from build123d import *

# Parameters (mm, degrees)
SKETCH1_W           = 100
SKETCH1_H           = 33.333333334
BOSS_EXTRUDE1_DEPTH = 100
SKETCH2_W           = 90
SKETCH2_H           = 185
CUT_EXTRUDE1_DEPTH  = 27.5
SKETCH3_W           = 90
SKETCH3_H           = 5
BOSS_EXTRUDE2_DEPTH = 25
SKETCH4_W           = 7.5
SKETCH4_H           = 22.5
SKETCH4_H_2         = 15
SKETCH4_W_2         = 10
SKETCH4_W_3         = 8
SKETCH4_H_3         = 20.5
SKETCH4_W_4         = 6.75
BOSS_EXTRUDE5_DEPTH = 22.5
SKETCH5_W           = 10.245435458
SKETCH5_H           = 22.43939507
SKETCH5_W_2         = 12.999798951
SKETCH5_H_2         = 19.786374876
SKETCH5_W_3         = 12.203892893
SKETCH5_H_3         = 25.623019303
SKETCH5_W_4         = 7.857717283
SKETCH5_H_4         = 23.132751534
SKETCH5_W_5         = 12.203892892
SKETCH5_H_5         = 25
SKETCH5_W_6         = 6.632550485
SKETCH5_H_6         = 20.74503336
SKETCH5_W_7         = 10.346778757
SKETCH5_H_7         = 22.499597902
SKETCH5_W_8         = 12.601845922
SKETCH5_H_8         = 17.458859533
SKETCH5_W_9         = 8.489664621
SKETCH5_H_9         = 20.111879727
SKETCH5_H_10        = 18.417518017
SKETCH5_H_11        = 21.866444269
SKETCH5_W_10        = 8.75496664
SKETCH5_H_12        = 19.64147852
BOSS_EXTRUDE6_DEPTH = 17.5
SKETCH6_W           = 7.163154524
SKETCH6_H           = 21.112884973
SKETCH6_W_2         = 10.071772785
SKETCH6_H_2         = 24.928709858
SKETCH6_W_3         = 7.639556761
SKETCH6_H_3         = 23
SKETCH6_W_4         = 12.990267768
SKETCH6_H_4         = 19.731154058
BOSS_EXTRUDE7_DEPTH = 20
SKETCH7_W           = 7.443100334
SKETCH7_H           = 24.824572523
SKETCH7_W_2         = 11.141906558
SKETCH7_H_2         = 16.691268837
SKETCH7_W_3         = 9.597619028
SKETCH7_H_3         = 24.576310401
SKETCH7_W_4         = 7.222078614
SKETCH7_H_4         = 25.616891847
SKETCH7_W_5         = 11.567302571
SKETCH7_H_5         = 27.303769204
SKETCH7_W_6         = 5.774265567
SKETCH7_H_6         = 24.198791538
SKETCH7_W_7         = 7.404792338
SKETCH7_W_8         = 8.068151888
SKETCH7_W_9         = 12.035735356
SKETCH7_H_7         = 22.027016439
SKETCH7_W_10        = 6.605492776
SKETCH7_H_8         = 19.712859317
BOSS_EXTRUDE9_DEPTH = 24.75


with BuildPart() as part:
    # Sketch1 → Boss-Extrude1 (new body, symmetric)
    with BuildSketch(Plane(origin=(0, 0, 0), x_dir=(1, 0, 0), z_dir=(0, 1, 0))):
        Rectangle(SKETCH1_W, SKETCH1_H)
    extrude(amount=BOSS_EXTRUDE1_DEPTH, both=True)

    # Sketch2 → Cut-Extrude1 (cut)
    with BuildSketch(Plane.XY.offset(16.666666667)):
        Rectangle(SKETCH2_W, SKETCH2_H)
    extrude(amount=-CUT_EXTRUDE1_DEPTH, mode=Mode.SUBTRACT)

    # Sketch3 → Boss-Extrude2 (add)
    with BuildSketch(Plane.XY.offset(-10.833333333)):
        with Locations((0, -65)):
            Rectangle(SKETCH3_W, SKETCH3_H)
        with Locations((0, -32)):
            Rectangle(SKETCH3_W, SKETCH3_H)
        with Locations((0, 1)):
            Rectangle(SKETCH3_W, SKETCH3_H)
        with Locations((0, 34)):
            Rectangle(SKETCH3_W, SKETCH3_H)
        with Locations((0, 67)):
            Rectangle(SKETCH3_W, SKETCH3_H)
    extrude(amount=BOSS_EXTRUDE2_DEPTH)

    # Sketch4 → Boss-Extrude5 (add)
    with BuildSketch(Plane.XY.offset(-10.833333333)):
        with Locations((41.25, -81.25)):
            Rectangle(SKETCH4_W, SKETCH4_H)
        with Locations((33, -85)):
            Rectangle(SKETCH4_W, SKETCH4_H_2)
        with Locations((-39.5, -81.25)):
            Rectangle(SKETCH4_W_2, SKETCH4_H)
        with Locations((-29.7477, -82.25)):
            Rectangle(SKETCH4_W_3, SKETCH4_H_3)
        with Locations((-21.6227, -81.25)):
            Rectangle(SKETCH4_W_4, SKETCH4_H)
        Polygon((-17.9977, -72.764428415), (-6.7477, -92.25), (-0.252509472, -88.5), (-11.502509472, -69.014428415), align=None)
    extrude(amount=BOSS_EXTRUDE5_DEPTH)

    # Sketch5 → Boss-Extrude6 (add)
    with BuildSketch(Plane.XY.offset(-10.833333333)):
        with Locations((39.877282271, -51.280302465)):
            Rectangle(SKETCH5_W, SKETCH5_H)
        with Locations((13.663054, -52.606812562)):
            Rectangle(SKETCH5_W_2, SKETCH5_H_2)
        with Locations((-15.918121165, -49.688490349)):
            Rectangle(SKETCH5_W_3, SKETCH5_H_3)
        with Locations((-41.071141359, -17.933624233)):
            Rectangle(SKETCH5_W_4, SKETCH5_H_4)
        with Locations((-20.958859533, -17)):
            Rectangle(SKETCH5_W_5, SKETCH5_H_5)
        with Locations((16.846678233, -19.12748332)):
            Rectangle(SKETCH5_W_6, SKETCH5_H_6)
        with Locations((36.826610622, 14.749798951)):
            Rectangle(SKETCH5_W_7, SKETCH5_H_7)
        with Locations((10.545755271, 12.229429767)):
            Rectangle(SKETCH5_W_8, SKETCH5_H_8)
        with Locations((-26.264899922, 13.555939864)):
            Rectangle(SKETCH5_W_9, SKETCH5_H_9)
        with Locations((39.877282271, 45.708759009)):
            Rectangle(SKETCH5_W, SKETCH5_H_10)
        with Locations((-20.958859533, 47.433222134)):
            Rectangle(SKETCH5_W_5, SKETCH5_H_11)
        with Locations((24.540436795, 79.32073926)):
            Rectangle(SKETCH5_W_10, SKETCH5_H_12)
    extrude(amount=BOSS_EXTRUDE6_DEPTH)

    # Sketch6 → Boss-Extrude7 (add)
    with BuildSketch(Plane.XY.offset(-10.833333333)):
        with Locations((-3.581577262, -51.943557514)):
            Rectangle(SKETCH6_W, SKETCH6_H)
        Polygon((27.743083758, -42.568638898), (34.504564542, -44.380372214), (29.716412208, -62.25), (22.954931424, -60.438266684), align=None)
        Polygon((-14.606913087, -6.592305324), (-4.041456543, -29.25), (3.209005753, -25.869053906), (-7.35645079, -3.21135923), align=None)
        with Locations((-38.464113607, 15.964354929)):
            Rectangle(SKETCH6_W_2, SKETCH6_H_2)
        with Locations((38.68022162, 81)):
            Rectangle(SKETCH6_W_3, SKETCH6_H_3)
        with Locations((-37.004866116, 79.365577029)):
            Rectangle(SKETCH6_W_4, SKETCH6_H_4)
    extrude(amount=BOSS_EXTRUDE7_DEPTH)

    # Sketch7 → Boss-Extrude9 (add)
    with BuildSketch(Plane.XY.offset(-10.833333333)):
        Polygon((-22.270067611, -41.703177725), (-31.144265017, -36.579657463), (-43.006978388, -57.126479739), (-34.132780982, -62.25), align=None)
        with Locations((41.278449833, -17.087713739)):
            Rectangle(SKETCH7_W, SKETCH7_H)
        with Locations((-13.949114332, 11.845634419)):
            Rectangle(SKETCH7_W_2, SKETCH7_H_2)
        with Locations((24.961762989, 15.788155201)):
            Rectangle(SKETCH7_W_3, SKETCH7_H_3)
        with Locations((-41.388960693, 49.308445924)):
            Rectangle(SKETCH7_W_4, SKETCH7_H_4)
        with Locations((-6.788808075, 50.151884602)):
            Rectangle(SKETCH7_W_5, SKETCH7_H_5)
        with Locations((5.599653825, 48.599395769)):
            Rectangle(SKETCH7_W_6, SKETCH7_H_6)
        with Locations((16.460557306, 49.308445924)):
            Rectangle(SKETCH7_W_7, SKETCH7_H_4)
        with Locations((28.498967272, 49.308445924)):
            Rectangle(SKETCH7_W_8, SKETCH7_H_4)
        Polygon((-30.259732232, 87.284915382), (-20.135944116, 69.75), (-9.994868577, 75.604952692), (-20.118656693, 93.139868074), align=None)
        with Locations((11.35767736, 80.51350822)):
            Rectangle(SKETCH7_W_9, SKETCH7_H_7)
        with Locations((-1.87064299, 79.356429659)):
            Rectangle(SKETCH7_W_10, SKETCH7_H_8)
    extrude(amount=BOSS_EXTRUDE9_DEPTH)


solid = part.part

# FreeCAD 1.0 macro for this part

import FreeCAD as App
import Part
import Sketcher

V = App.Vector
Q = App.Units.Quantity

doc = App.newDocument("Part")
params = doc.addObject("Spreadsheet::Sheet", "Params")
for row, (alias, value) in enumerate([
    ("sketch1_width", "100 mm"),
    ("pad1_length", "200 mm"),
    ("sketch2_width", "90 mm"),
    ("sketch2_height", "185 mm"),
    ("pocket1_length", "27.5 mm"),
    ("sketch3_width", "90 mm"),
    ("sketch3_height", "5 mm"),
    ("pad2_length", "25 mm"),
    ("sketch4_width", "10 mm"),
    ("sketch4_width2", "8 mm"),
    ("sketch4_height", "15 mm"),
    ("sketch4_width3", "7.5 mm"),
    ("sketch4_height2", "22.5 mm"),
    ("pad3_length", "22.5 mm"),
    ("sketch5_height", "25 mm"),
    ("pad4_length", "17.5 mm"),
    ("sketch6_height", "23 mm"),
    ("sketch6_length", "7 mm"),
    ("sketch6_length2", "25 mm"),
    ("sketch6_length3", "8 mm"),
    ("sketch6_length4", "18.5 mm"),
    ("pad5_length", "20 mm"),
    ("pad6_length", "24.75 mm"),
], start=1):
    params.set(f"A{row}", alias)
    params.set(f"B{row}", "=" + value)
    params.setAlias(f"B{row}", alias)

body = doc.addObject("PartDesign::Body", "Body")

# Sketch on XZ plane
sketch1 = doc.addObject("Sketcher::SketchObject", "Sketch")
body.addObject(sketch1)
sketch1.AttachmentSupport = (doc.XZ_Plane, [""])
sketch1.MapMode = "FlatFace"
sketch1.addGeometry([
    Part.LineSegment(V(-50, -16.666667, 0), V(-50, 16.666667, 0)),
    Part.LineSegment(V(-50, 16.666667, 0), V(50, 16.666667, 0)),
    Part.LineSegment(V(50, 16.666667, 0), V(50, -16.666667, 0)),
    Part.LineSegment(V(50, -16.666667, 0), V(-50, -16.666667, 0)),
], False)
sketch1.addConstraint([
    Sketcher.Constraint("Coincident", 0, 2, 1, 1),
    Sketcher.Constraint("Coincident", 1, 2, 2, 1),
    Sketcher.Constraint("Coincident", 2, 2, 3, 1),
    Sketcher.Constraint("Coincident", 3, 2, 0, 1),
    Sketcher.Constraint("Vertical", 0),
    Sketcher.Constraint("Horizontal", 1),
    Sketcher.Constraint("Vertical", 2),
    Sketcher.Constraint("Horizontal", 3),
    Sketcher.Constraint("Symmetric", 0, 2, 2, 2, -1, 1),
    Sketcher.Constraint("DistanceX", 1, 1, 1, 2, Q("100 mm")),
    Sketcher.Constraint("DistanceY", 0, 1, 0, 2, Q("33.333333 mm")),
])
sketch1.setExpression("Constraints[9]", "Params.sketch1_width")
pad1 = doc.addObject("PartDesign::Pad", "Pad")
body.addObject(pad1)
pad1.Profile = sketch1
pad1.setExpression("Length", "Params.pad1_length")
pad1.Midplane = True

# Sketch on XY plane
sketch2 = doc.addObject("Sketcher::SketchObject", "Sketch001")
body.addObject(sketch2)
sketch2.AttachmentSupport = (doc.XY_Plane, [""])
sketch2.MapMode = "FlatFace"
sketch2.AttachmentOffset = App.Placement(V(0, 0, 16.666667), App.Rotation())
sketch2.addGeometry([
    Part.LineSegment(V(-45, 92.5, 0), V(-45, -92.5, 0)),
    Part.LineSegment(V(-45, -92.5, 0), V(45, -92.5, 0)),
    Part.LineSegment(V(45, -92.5, 0), V(45, 92.5, 0)),
    Part.LineSegment(V(45, 92.5, 0), V(-45, 92.5, 0)),
], False)
sketch2.addConstraint([
    Sketcher.Constraint("Coincident", 0, 2, 1, 1),
    Sketcher.Constraint("Coincident", 1, 2, 2, 1),
    Sketcher.Constraint("Coincident", 2, 2, 3, 1),
    Sketcher.Constraint("Coincident", 3, 2, 0, 1),
    Sketcher.Constraint("Vertical", 0),
    Sketcher.Constraint("Horizontal", 1),
    Sketcher.Constraint("Vertical", 2),
    Sketcher.Constraint("Horizontal", 3),
    Sketcher.Constraint("Symmetric", 0, 2, 2, 2, -1, 1),
    Sketcher.Constraint("DistanceX", 1, 1, 1, 2, Q("90 mm")),
    Sketcher.Constraint("DistanceY", 0, 2, 0, 1, Q("185 mm")),
])
sketch2.setExpression("Constraints[9]", "Params.sketch2_width")
sketch2.setExpression("Constraints[10]", "Params.sketch2_height")
pocket1 = doc.addObject("PartDesign::Pocket", "Pocket")
body.addObject(pocket1)
pocket1.Profile = sketch2
pocket1.setExpression("Length", "Params.pocket1_length")

# Sketch on XY plane
sketch3 = doc.addObject("Sketcher::SketchObject", "Sketch002")
body.addObject(sketch3)
sketch3.AttachmentSupport = (doc.XY_Plane, [""])
sketch3.MapMode = "FlatFace"
sketch3.AttachmentOffset = App.Placement(V(0, 0, -10.833333), App.Rotation())
sketch3.addGeometry([
    Part.LineSegment(V(-45, -62.5, 0), V(-45, -67.5, 0)),  # 0
    Part.LineSegment(V(-45, -67.5, 0), V(45, -67.5, 0)),  # 1
    Part.LineSegment(V(45, -67.5, 0), V(45, -62.5, 0)),  # 2
    Part.LineSegment(V(45, -62.5, 0), V(-45, -62.5, 0)),  # 3
    Part.LineSegment(V(-45, -29.5, 0), V(-45, -34.5, 0)),  # 4
    Part.LineSegment(V(-45, -34.5, 0), V(45, -34.5, 0)),  # 5
    Part.LineSegment(V(45, -34.5, 0), V(45, -29.5, 0)),  # 6
    Part.LineSegment(V(45, -29.5, 0), V(-45, -29.5, 0)),  # 7
    Part.LineSegment(V(-45, 3.5, 0), V(-45, -1.5, 0)),  # 8
    Part.LineSegment(V(-45, -1.5, 0), V(45, -1.5, 0)),  # 9
    Part.LineSegment(V(45, -1.5, 0), V(45, 3.5, 0)),  # 10
    Part.LineSegment(V(45, 3.5, 0), V(-45, 3.5, 0)),  # 11
    Part.LineSegment(V(-45, 36.5, 0), V(-45, 31.5, 0)),  # 12
    Part.LineSegment(V(-45, 31.5, 0), V(45, 31.5, 0)),  # 13
    Part.LineSegment(V(45, 31.5, 0), V(45, 36.5, 0)),  # 14
    Part.LineSegment(V(45, 36.5, 0), V(-45, 36.5, 0)),  # 15
    Part.LineSegment(V(-45, 69.5, 0), V(-45, 64.5, 0)),  # 16
    Part.LineSegment(V(-45, 64.5, 0), V(45, 64.5, 0)),  # 17
    Part.LineSegment(V(45, 64.5, 0), V(45, 69.5, 0)),  # 18
    Part.LineSegment(V(45, 69.5, 0), V(-45, 69.5, 0)),  # 19
], False)
sketch3.addConstraint([
    Sketcher.Constraint("Coincident", 0, 2, 1, 1),
    Sketcher.Constraint("Coincident", 1, 2, 2, 1),
    Sketcher.Constraint("Coincident", 2, 2, 3, 1),
    Sketcher.Constraint("Coincident", 3, 2, 0, 1),
    Sketcher.Constraint("Coincident", 4, 2, 5, 1),
    Sketcher.Constraint("Coincident", 5, 2, 6, 1),
    Sketcher.Constraint("Coincident", 6, 2, 7, 1),
    Sketcher.Constraint("Coincident", 7, 2, 4, 1),
    Sketcher.Constraint("Coincident", 8, 2, 9, 1),
    Sketcher.Constraint("Coincident", 9, 2, 10, 1),
    Sketcher.Constraint("Coincident", 10, 2, 11, 1),
    Sketcher.Constraint("Coincident", 11, 2, 8, 1),
    Sketcher.Constraint("Coincident", 12, 2, 13, 1),
    Sketcher.Constraint("Coincident", 13, 2, 14, 1),
    Sketcher.Constraint("Coincident", 14, 2, 15, 1),
    Sketcher.Constraint("Coincident", 15, 2, 12, 1),
    Sketcher.Constraint("Coincident", 16, 2, 17, 1),
    Sketcher.Constraint("Coincident", 17, 2, 18, 1),
    Sketcher.Constraint("Coincident", 18, 2, 19, 1),
    Sketcher.Constraint("Coincident", 19, 2, 16, 1),
    Sketcher.Constraint("Vertical", 0),
    Sketcher.Constraint("Horizontal", 1),
    Sketcher.Constraint("Vertical", 2),
    Sketcher.Constraint("Horizontal", 3),
    Sketcher.Constraint("Vertical", 4),
    Sketcher.Constraint("Horizontal", 5),
    Sketcher.Constraint("Vertical", 6),
    Sketcher.Constraint("Horizontal", 7),
    Sketcher.Constraint("Vertical", 8),
    Sketcher.Constraint("Horizontal", 9),
    Sketcher.Constraint("Vertical", 10),
    Sketcher.Constraint("Horizontal", 11),
    Sketcher.Constraint("Vertical", 12),
    Sketcher.Constraint("Horizontal", 13),
    Sketcher.Constraint("Vertical", 14),
    Sketcher.Constraint("Horizontal", 15),
    Sketcher.Constraint("Vertical", 16),
    Sketcher.Constraint("Horizontal", 17),
    Sketcher.Constraint("Vertical", 18),
    Sketcher.Constraint("Horizontal", 19),
    Sketcher.Constraint("Vertical", 3, 2, 4, 2),
    Sketcher.Constraint("Vertical", 2, 2, 5, 2),
    Sketcher.Constraint("Vertical", 7, 2, 8, 2),
    Sketcher.Constraint("Vertical", 6, 2, 9, 2),
    Sketcher.Constraint("Vertical", 11, 2, 12, 2),
    Sketcher.Constraint("Vertical", 10, 2, 13, 2),
    Sketcher.Constraint("Vertical", 15, 2, 16, 2),
    Sketcher.Constraint("Vertical", 14, 2, 17, 2),
    Sketcher.Constraint("Equal", 2, 4),
    Sketcher.Constraint("Equal", 6, 8),
    Sketcher.Constraint("Equal", 10, 12),
    Sketcher.Constraint("Equal", 14, 16),
    Sketcher.Constraint("DistanceX", 1, 1, 1, 2, Q("90 mm")),
    Sketcher.Constraint("DistanceY", 0, 2, 0, 1, Q("5 mm")),
    Sketcher.Constraint("DistanceX", 0, 2, -1, 1, Q("45 mm")),
    Sketcher.Constraint("DistanceY", 3, 2, 4, 2, Q("28 mm")),
    Sketcher.Constraint("DistanceY", 7, 2, 8, 2, Q("28 mm")),
    Sketcher.Constraint("DistanceY", 11, 2, 12, 2, Q("28 mm")),
    Sketcher.Constraint("DistanceY", 15, 2, 16, 2, Q("28 mm")),
    Sketcher.Constraint("DistanceY", 0, 2, -1, 1, Q("67.5 mm")),
])
sketch3.setExpression("Constraints[52]", "Params.sketch3_width")
sketch3.setExpression("Constraints[53]", "Params.sketch3_height")
pad2 = doc.addObject("PartDesign::Pad", "Pad001")
body.addObject(pad2)
pad2.Profile = sketch3
pad2.setExpression("Length", "Params.pad2_length")

# Sketch on XY plane
sketch4 = doc.addObject("Sketcher::SketchObject", "Sketch003")
body.addObject(sketch4)
sketch4.AttachmentSupport = (doc.XY_Plane, [""])
sketch4.MapMode = "FlatFace"
sketch4.AttachmentOffset = App.Placement(V(0, 0, -10.833333), App.Rotation())
sketch4.addGeometry([
    Part.LineSegment(V(37.5, -70, 0), V(37.5, -92.5, 0)),  # 0
    Part.LineSegment(V(37.5, -92.5, 0), V(45, -92.5, 0)),  # 1
    Part.LineSegment(V(45, -92.5, 0), V(45, -70, 0)),  # 2
    Part.LineSegment(V(45, -70, 0), V(37.5, -70, 0)),  # 3
    Part.LineSegment(V(29.25, -77.5, 0), V(29.25, -92.5, 0)),  # 4
    Part.LineSegment(V(29.25, -92.5, 0), V(36.75, -92.5, 0)),  # 5
    Part.LineSegment(V(36.75, -92.5, 0), V(36.75, -77.5, 0)),  # 6
    Part.LineSegment(V(36.75, -77.5, 0), V(29.25, -77.5, 0)),  # 7
    Part.LineSegment(V(-44.5, -70, 0), V(-44.5, -92.5, 0)),  # 8
    Part.LineSegment(V(-44.5, -92.5, 0), V(-34.5, -92.5, 0)),  # 9
    Part.LineSegment(V(-34.5, -92.5, 0), V(-34.5, -70, 0)),  # 10
    Part.LineSegment(V(-34.5, -70, 0), V(-44.5, -70, 0)),  # 11
    Part.LineSegment(V(-33.7477, -72, 0), V(-33.7477, -92.5, 0)),  # 12
    Part.LineSegment(V(-33.7477, -92.5, 0), V(-25.7477, -92.5, 0)),  # 13
    Part.LineSegment(V(-25.7477, -92.5, 0), V(-25.7477, -72, 0)),  # 14
    Part.LineSegment(V(-25.7477, -72, 0), V(-33.7477, -72, 0)),  # 15
    Part.LineSegment(V(-24.9977, -70, 0), V(-24.9977, -92.5, 0)),  # 16
    Part.LineSegment(V(-24.9977, -92.5, 0), V(-18.2477, -92.5, 0)),  # 17
    Part.LineSegment(V(-18.2477, -92.5, 0), V(-18.2477, -70, 0)),  # 18
    Part.LineSegment(V(-18.2477, -70, 0), V(-24.9977, -70, 0)),  # 19
    Part.LineSegment(V(-17.9977, -72.764428, 0), V(-6.7477, -92.25, 0)),  # 20
    Part.LineSegment(V(-6.7477, -92.25, 0), V(-0.252509, -88.5, 0)),  # 21
    Part.LineSegment(V(-0.252509, -88.5, 0), V(-11.502509, -69.014428, 0)),  # 22
    Part.LineSegment(V(-11.502509, -69.014428, 0), V(-17.9977, -72.764428, 0)),  # 23
], False)
sketch4.addConstraint([
    Sketcher.Constraint("Coincident", 0, 2, 1, 1),
    Sketcher.Constraint("Coincident", 1, 2, 2, 1),
    Sketcher.Constraint("Coincident", 2, 2, 3, 1),
    Sketcher.Constraint("Coincident", 3, 2, 0, 1),
    Sketcher.Constraint("Coincident", 4, 2, 5, 1),
    Sketcher.Constraint("Coincident", 5, 2, 6, 1),
    Sketcher.Constraint("Coincident", 6, 2, 7, 1),
    Sketcher.Constraint("Coincident", 7, 2, 4, 1),
    Sketcher.Constraint("Coincident", 8, 2, 9, 1),
    Sketcher.Constraint("Coincident", 9, 2, 10, 1),
    Sketcher.Constraint("Coincident", 10, 2, 11, 1),
    Sketcher.Constraint("Coincident", 11, 2, 8, 1),
    Sketcher.Constraint("Coincident", 12, 2, 13, 1),
    Sketcher.Constraint("Coincident", 13, 2, 14, 1),
    Sketcher.Constraint("Coincident", 14, 2, 15, 1),
    Sketcher.Constraint("Coincident", 15, 2, 12, 1),
    Sketcher.Constraint("Coincident", 16, 2, 17, 1),
    Sketcher.Constraint("Coincident", 17, 2, 18, 1),
    Sketcher.Constraint("Coincident", 18, 2, 19, 1),
    Sketcher.Constraint("Coincident", 19, 2, 16, 1),
    Sketcher.Constraint("Coincident", 20, 2, 21, 1),
    Sketcher.Constraint("Coincident", 21, 2, 22, 1),
    Sketcher.Constraint("Coincident", 22, 2, 23, 1),
    Sketcher.Constraint("Coincident", 23, 2, 20, 1),
    Sketcher.Constraint("Vertical", 0),
    Sketcher.Constraint("Horizontal", 1),
    Sketcher.Constraint("Vertical", 2),
    Sketcher.Constraint("Horizontal", 3),
    Sketcher.Constraint("Vertical", 4),
    Sketcher.Constraint("Horizontal", 5),
    Sketcher.Constraint("Vertical", 6),
    Sketcher.Constraint("Horizontal", 7),
    Sketcher.Constraint("Vertical", 8),
    Sketcher.Constraint("Horizontal", 9),
    Sketcher.Constraint("Vertical", 10),
    Sketcher.Constraint("Horizontal", 11),
    Sketcher.Constraint("Vertical", 12),
    Sketcher.Constraint("Horizontal", 13),
    Sketcher.Constraint("Vertical", 14),
    Sketcher.Constraint("Horizontal", 15),
    Sketcher.Constraint("Vertical", 16),
    Sketcher.Constraint("Horizontal", 17),
    Sketcher.Constraint("Vertical", 18),
    Sketcher.Constraint("Horizontal", 19),
    Sketcher.Constraint("Perpendicular", 20, 21),
    Sketcher.Constraint("Perpendicular", 21, 22),
    Sketcher.Constraint("Perpendicular", 22, 23),
    Sketcher.Constraint("Horizontal", 1, 2, 4, 2),
    Sketcher.Constraint("Horizontal", 5, 2, 8, 2),
    Sketcher.Constraint("Horizontal", 3, 2, 10, 2),
    Sketcher.Constraint("Horizontal", 9, 2, 12, 2),
    Sketcher.Constraint("Horizontal", 13, 2, 16, 2),
    Sketcher.Constraint("Horizontal", 11, 2, 18, 2),
    Sketcher.Constraint("Equal", 3, 5),
    Sketcher.Constraint("DistanceX", 9, 1, 9, 2, Q("10 mm")),
    Sketcher.Constraint("DistanceX", 13, 1, 13, 2, Q("8 mm")),
    Sketcher.Constraint("DistanceY", 4, 2, 4, 1, Q("15 mm")),
    Sketcher.Constraint("Angle", 20, Q("-60 deg")),
    Sketcher.Constraint("DistanceX", 1, 1, 1, 2, Q("7.5 mm")),
    Sketcher.Constraint("DistanceY", 0, 2, 0, 1, Q("22.5 mm")),
    Sketcher.Constraint("DistanceY", 12, 2, 12, 1, Q("20.5 mm")),
    Sketcher.Constraint("DistanceX", -1, 1, 1, 2, Q("45 mm")),
    Sketcher.Constraint("DistanceY", 2, 2, -1, 1, Q("70 mm")),
    Sketcher.Constraint("DistanceX", 8, 2, 0, 2, Q("82 mm")),
    Sketcher.Constraint("DistanceX", 13, 2, 20, 2, Q("19 mm")),
    Sketcher.Constraint("DistanceY", 17, 2, 21, 2, Q("4 mm")),
    Sketcher.Constraint("DistanceX", 19, 2, 23, 2, Q("7 mm")),
    Sketcher.Constraint("Distance", 20, Q("22.5 mm")),
    Sketcher.Constraint("Distance", 21, Q("7.5 mm")),
    Sketcher.Constraint("DistanceX", 17, 1, 17, 2, Q("6.75 mm")),
    Sketcher.Constraint("DistanceX", -1, 1, 4, 2, Q("29.25 mm")),
    Sketcher.Constraint("DistanceX", 12, 2, -1, 1, Q("33.7477 mm")),
])
sketch4.setExpression("Constraints[54]", "Params.sketch4_width")
sketch4.setExpression("Constraints[55]", "Params.sketch4_width2")
sketch4.setExpression("Constraints[56]", "Params.sketch4_height")
sketch4.setExpression("Constraints[58]", "Params.sketch4_width3")
sketch4.setExpression("Constraints[59]", "Params.sketch4_height2")
pad3 = doc.addObject("PartDesign::Pad", "Pad002")
body.addObject(pad3)
pad3.Profile = sketch4
pad3.setExpression("Length", "Params.pad3_length")

# Sketch on XY plane
sketch5 = doc.addObject("Sketcher::SketchObject", "Sketch004")
body.addObject(sketch5)
sketch5.AttachmentSupport = (doc.XY_Plane, [""])
sketch5.MapMode = "FlatFace"
sketch5.AttachmentOffset = App.Placement(V(0, 0, -10.833333), App.Rotation())
sketch5.addGeometry([
    Part.LineSegment(V(34.754565, -40.060605, 0), V(34.754565, -62.5, 0)),  # 0
    Part.LineSegment(V(34.754565, -62.5, 0), V(45, -62.5, 0)),  # 1
    Part.LineSegment(V(45, -62.5, 0), V(45, -40.060605, 0)),  # 2
    Part.LineSegment(V(45, -40.060605, 0), V(34.754565, -40.060605, 0)),  # 3
    Part.LineSegment(V(7.163155, -42.713625, 0), V(7.163155, -62.5, 0)),  # 4
    Part.LineSegment(V(7.163155, -62.5, 0), V(20.162953, -62.5, 0)),  # 5
    Part.LineSegment(V(20.162953, -62.5, 0), V(20.162953, -42.713625, 0)),  # 6
    Part.LineSegment(V(20.162953, -42.713625, 0), V(7.163155, -42.713625, 0)),  # 7
    Part.LineSegment(V(-22.020068, -36.876981, 0), V(-22.020068, -62.5, 0)),  # 8
    Part.LineSegment(V(-22.020068, -62.5, 0), V(-9.816175, -62.5, 0)),  # 9
    Part.LineSegment(V(-9.816175, -62.5, 0), V(-9.816175, -36.876981, 0)),  # 10
    Part.LineSegment(V(-9.816175, -36.876981, 0), V(-22.020068, -36.876981, 0)),  # 11
    Part.LineSegment(V(-45, -6.367248, 0), V(-45, -29.5, 0)),  # 12
    Part.LineSegment(V(-45, -29.5, 0), V(-37.142283, -29.5, 0)),  # 13
    Part.LineSegment(V(-37.142283, -29.5, 0), V(-37.142283, -6.367248, 0)),  # 14
    Part.LineSegment(V(-37.142283, -6.367248, 0), V(-45, -6.367248, 0)),  # 15
    Part.LineSegment(V(-27.060806, -4.5, 0), V(-27.060806, -29.5, 0)),  # 16
    Part.LineSegment(V(-27.060806, -29.5, 0), V(-14.856913, -29.5, 0)),  # 17
    Part.LineSegment(V(-14.856913, -29.5, 0), V(-14.856913, -4.5, 0)),  # 18
    Part.LineSegment(V(-14.856913, -4.5, 0), V(-27.060806, -4.5, 0)),  # 19
    Part.LineSegment(V(13.530403, -8.754967, 0), V(13.530403, -29.5, 0)),  # 20
    Part.LineSegment(V(13.530403, -29.5, 0), V(20.162953, -29.5, 0)),  # 21
    Part.LineSegment(V(20.162953, -29.5, 0), V(20.162953, -8.754967, 0)),  # 22
    Part.LineSegment(V(20.162953, -8.754967, 0), V(13.530403, -8.754967, 0)),  # 23
    Part.LineSegment(V(31.653221, 25.999598, 0), V(31.653221, 3.5, 0)),  # 24
    Part.LineSegment(V(31.653221, 3.5, 0), V(42, 3.5, 0)),  # 25
    Part.LineSegment(V(42, 3.5, 0), V(42, 25.999598, 0)),  # 26
    Part.LineSegment(V(42, 25.999598, 0), V(31.653221, 25.999598, 0)),  # 27
    Part.LineSegment(V(4.244832, 20.95886, 0), V(4.244832, 3.5, 0)),  # 28
    Part.LineSegment(V(4.244832, 3.5, 0), V(16.846678, 3.5, 0)),  # 29
    Part.LineSegment(V(16.846678, 3.5, 0), V(16.846678, 20.95886, 0)),  # 30
    Part.LineSegment(V(16.846678, 20.95886, 0), V(4.244832, 20.95886, 0)),  # 31
    Part.LineSegment(V(-30.509732, 23.61188, 0), V(-30.509732, 3.5, 0)),  # 32
    Part.LineSegment(V(-30.509732, 3.5, 0), V(-22.020068, 3.5, 0)),  # 33
    Part.LineSegment(V(-22.020068, 3.5, 0), V(-22.020068, 23.61188, 0)),  # 34
    Part.LineSegment(V(-22.020068, 23.61188, 0), V(-30.509732, 23.61188, 0)),  # 35
    Part.LineSegment(V(34.754565, 54.917518, 0), V(34.754565, 36.5, 0)),  # 36
    Part.LineSegment(V(34.754565, 36.5, 0), V(45, 36.5, 0)),  # 37
    Part.LineSegment(V(45, 36.5, 0), V(45, 54.917518, 0)),  # 38
    Part.LineSegment(V(45, 54.917518, 0), V(34.754565, 54.917518, 0)),  # 39
    Part.LineSegment(V(-27.060806, 58.366444, 0), V(-27.060806, 36.5, 0)),  # 40
    Part.LineSegment(V(-27.060806, 36.5, 0), V(-14.856913, 36.5, 0)),  # 41
    Part.LineSegment(V(-14.856913, 36.5, 0), V(-14.856913, 58.366444, 0)),  # 42
    Part.LineSegment(V(-14.856913, 58.366444, 0), V(-27.060806, 58.366444, 0)),  # 43
    Part.LineSegment(V(20.162953, 89.141479, 0), V(20.162953, 69.5, 0)),  # 44
    Part.LineSegment(V(20.162953, 69.5, 0), V(28.91792, 69.5, 0)),  # 45
    Part.LineSegment(V(28.91792, 69.5, 0), V(28.91792, 89.141479, 0)),  # 46
    Part.LineSegment(V(28.91792, 89.141479, 0), V(20.162953, 89.141479, 0)),  # 47
], False)
sketch5.addConstraint([
    Sketcher.Constraint("Coincident", 0, 2, 1, 1),
    Sketcher.Constraint("Coincident", 1, 2, 2, 1),
    Sketcher.Constraint("Coincident", 2, 2, 3, 1),
    Sketcher.Constraint("Coincident", 3, 2, 0, 1),
    Sketcher.Constraint("Coincident", 4, 2, 5, 1),
    Sketcher.Constraint("Coincident", 5, 2, 6, 1),
    Sketcher.Constraint("Coincident", 6, 2, 7, 1),
    Sketcher.Constraint("Coincident", 7, 2, 4, 1),
    Sketcher.Constraint("Coincident", 8, 2, 9, 1),
    Sketcher.Constraint("Coincident", 9, 2, 10, 1),
    Sketcher.Constraint("Coincident", 10, 2, 11, 1),
    Sketcher.Constraint("Coincident", 11, 2, 8, 1),
    Sketcher.Constraint("Coincident", 12, 2, 13, 1),
    Sketcher.Constraint("Coincident", 13, 2, 14, 1),
    Sketcher.Constraint("Coincident", 14, 2, 15, 1),
    Sketcher.Constraint("Coincident", 15, 2, 12, 1),
    Sketcher.Constraint("Coincident", 16, 2, 17, 1),
    Sketcher.Constraint("Coincident", 17, 2, 18, 1),
    Sketcher.Constraint("Coincident", 18, 2, 19, 1),
    Sketcher.Constraint("Coincident", 19, 2, 16, 1),
    Sketcher.Constraint("Coincident", 20, 2, 21, 1),
    Sketcher.Constraint("Coincident", 21, 2, 22, 1),
    Sketcher.Constraint("Coincident", 22, 2, 23, 1),
    Sketcher.Constraint("Coincident", 23, 2, 20, 1),
    Sketcher.Constraint("Coincident", 24, 2, 25, 1),
    Sketcher.Constraint("Coincident", 25, 2, 26, 1),
    Sketcher.Constraint("Coincident", 26, 2, 27, 1),
    Sketcher.Constraint("Coincident", 27, 2, 24, 1),
    Sketcher.Constraint("Coincident", 28, 2, 29, 1),
    Sketcher.Constraint("Coincident", 29, 2, 30, 1),
    Sketcher.Constraint("Coincident", 30, 2, 31, 1),
    Sketcher.Constraint("Coincident", 31, 2, 28, 1),
    Sketcher.Constraint("Coincident", 32, 2, 33, 1),
    Sketcher.Constraint("Coincident", 33, 2, 34, 1),
    Sketcher.Constraint("Coincident", 34, 2, 35, 1),
    Sketcher.Constraint("Coincident", 35, 2, 32, 1),
    Sketcher.Constraint("Coincident", 36, 2, 37, 1),
    Sketcher.Constraint("Coincident", 37, 2, 38, 1),
    Sketcher.Constraint("Coincident", 38, 2, 39, 1),
    Sketcher.Constraint("Coincident", 39, 2, 36, 1),
    Sketcher.Constraint("Coincident", 40, 2, 41, 1),
    Sketcher.Constraint("Coincident", 41, 2, 42, 1),
    Sketcher.Constraint("Coincident", 42, 2, 43, 1),
    Sketcher.Constraint("Coincident", 43, 2, 40, 1),
    Sketcher.Constraint("Coincident", 44, 2, 45, 1),
    Sketcher.Constraint("Coincident", 45, 2, 46, 1),
    Sketcher.Constraint("Coincident", 46, 2, 47, 1),
    Sketcher.Constraint("Coincident", 47, 2, 44, 1),
    Sketcher.Constraint("Vertical", 0),
    Sketcher.Constraint("Horizontal", 1),
    Sketcher.Constraint("Vertical", 2),
    Sketcher.Constraint("Horizontal", 3),
    Sketcher.Constraint("Vertical", 4),
    Sketcher.Constraint("Horizontal", 5),
    Sketcher.Constraint("Vertical", 6),
    Sketcher.Constraint("Horizontal", 7),
    Sketcher.Constraint("Vertical", 8),
    Sketcher.Constraint("Horizontal", 9),
    Sketcher.Constraint("Vertical", 10),
    Sketcher.Constraint("Horizontal", 11),
    Sketcher.Constraint("Vertical", 12),
    Sketcher.Constraint("Horizontal", 13),
    Sketcher.Constraint("Vertical", 14),
    Sketcher.Constraint("Horizontal", 15),
    Sketcher.Constraint("Vertical", 16),
    Sketcher.Constraint("Horizontal", 17),
    Sketcher.Constraint("Vertical", 18),
    Sketcher.Constraint("Horizontal", 19),
    Sketcher.Constraint("Vertical", 20),
    Sketcher.Constraint("Horizontal", 21),
    Sketcher.Constraint("Vertical", 22),
    Sketcher.Constraint("Horizontal", 23),
    Sketcher.Constraint("Vertical", 24),
    Sketcher.Constraint("Horizontal", 25),
    Sketcher.Constraint("Vertical", 26),
    Sketcher.Constraint("Horizontal", 27),
    Sketcher.Constraint("Vertical", 28),
    Sketcher.Constraint("Horizontal", 29),
    Sketcher.Constraint("Vertical", 30),
    Sketcher.Constraint("Horizontal", 31),
    Sketcher.Constraint("Vertical", 32),
    Sketcher.Constraint("Horizontal", 33),
    Sketcher.Constraint("Vertical", 34),
    Sketcher.Constraint("Horizontal", 35),
    Sketcher.Constraint("Vertical", 36),
    Sketcher.Constraint("Horizontal", 37),
    Sketcher.Constraint("Vertical", 38),
    Sketcher.Constraint("Horizontal", 39),
    Sketcher.Constraint("Vertical", 40),
    Sketcher.Constraint("Horizontal", 41),
    Sketcher.Constraint("Vertical", 42),
    Sketcher.Constraint("Horizontal", 43),
    Sketcher.Constraint("Vertical", 44),
    Sketcher.Constraint("Horizontal", 45),
    Sketcher.Constraint("Vertical", 46),
    Sketcher.Constraint("Horizontal", 47),
    Sketcher.Constraint("Horizontal", 1, 2, 4, 2),
    Sketcher.Constraint("Horizontal", 5, 2, 8, 2),
    Sketcher.Constraint("Horizontal", 13, 2, 16, 2),
    Sketcher.Constraint("Horizontal", 17, 2, 20, 2),
    Sketcher.Constraint("Horizontal", 25, 2, 28, 2),
    Sketcher.Constraint("Horizontal", 29, 2, 32, 2),
    Sketcher.Constraint("Horizontal", 37, 2, 40, 2),
    Sketcher.Constraint("Vertical", 6, 2, 21, 2),
    Sketcher.Constraint("Vertical", 11, 2, 33, 2),
    Sketcher.Constraint("Vertical", 3, 2, 36, 2),
    Sketcher.Constraint("Vertical", 2, 2, 37, 2),
    Sketcher.Constraint("Vertical", 19, 2, 40, 2),
    Sketcher.Constraint("Vertical", 18, 2, 41, 2),
    Sketcher.Constraint("Vertical", 22, 2, 44, 2),
    Sketcher.Constraint("Equal", 11, 17),
    Sketcher.Constraint("DistanceY", 16, 2, 16, 1, Q("25 mm")),
    Sketcher.Constraint("DistanceX", -1, 1, 1, 2, Q("45 mm")),
    Sketcher.Constraint("DistanceX", 12, 2, -1, 1, Q("45 mm")),
    Sketcher.Constraint("DistanceX", -1, 1, 25, 2, Q("42 mm")),
    Sketcher.Constraint("DistanceY", 8, 2, 12, 2, Q("33 mm")),
    Sketcher.Constraint("DistanceY", 21, 2, 24, 2, Q("33 mm")),
    Sketcher.Constraint("DistanceY", 24, 2, 36, 2, Q("33 mm")),
    Sketcher.Constraint("DistanceY", 36, 2, 44, 2, Q("33 mm")),
    Sketcher.Constraint("DistanceY", 0, 2, -1, 1, Q("62.5 mm")),
    Sketcher.Constraint("DistanceX", 5, 1, 5, 2, Q("12.999799 mm")),
    Sketcher.Constraint("DistanceX", 21, 1, 21, 2, Q("6.63255 mm")),
    Sketcher.Constraint("DistanceX", 25, 1, 25, 2, Q("10.346779 mm")),
    Sketcher.Constraint("DistanceY", 8, 2, 8, 1, Q("25.623019 mm")),
    Sketcher.Constraint("DistanceY", 12, 2, 12, 1, Q("23.132752 mm")),
    Sketcher.Constraint("DistanceY", 28, 2, 28, 1, Q("17.45886 mm")),
    Sketcher.Constraint("DistanceY", 32, 2, 32, 1, Q("20.11188 mm")),
    Sketcher.Constraint("DistanceY", 36, 2, 36, 1, Q("18.417518 mm")),
    Sketcher.Constraint("DistanceY", 44, 2, 44, 1, Q("19.641479 mm")),
    Sketcher.Constraint("DistanceX", 34, 2, 31, 2, Q("26.2649 mm")),
    Sketcher.Constraint("DistanceX", 1, 1, 1, 2, Q("10.245435 mm")),
    Sketcher.Constraint("DistanceX", 9, 1, 9, 2, Q("12.203893 mm")),
    Sketcher.Constraint("DistanceX", 13, 1, 13, 2, Q("7.857717 mm")),
    Sketcher.Constraint("DistanceX", 29, 1, 29, 2, Q("12.601846 mm")),
    Sketcher.Constraint("DistanceX", 33, 1, 33, 2, Q("8.489665 mm")),
    Sketcher.Constraint("DistanceX", 45, 1, 45, 2, Q("8.754967 mm")),
    Sketcher.Constraint("DistanceY", 0, 2, 0, 1, Q("22.439395 mm")),
    Sketcher.Constraint("DistanceY", 4, 2, 4, 1, Q("19.786375 mm")),
    Sketcher.Constraint("DistanceY", 20, 2, 20, 1, Q("20.745033 mm")),
    Sketcher.Constraint("DistanceY", 24, 2, 24, 1, Q("22.499598 mm")),
    Sketcher.Constraint("DistanceY", 40, 2, 40, 1, Q("21.866444 mm")),
    Sketcher.Constraint("DistanceX", -1, 1, 29, 2, Q("16.846678 mm")),
    Sketcher.Constraint("DistanceX", -1, 1, 45, 2, Q("28.91792 mm")),
    Sketcher.Constraint("DistanceX", 16, 2, 11, 2, Q("5.040738 mm")),
])
sketch5.setExpression("Constraints[111]", "Params.sketch5_height")
pad4 = doc.addObject("PartDesign::Pad", "Pad003")
body.addObject(pad4)
pad4.Profile = sketch5
pad4.setExpression("Length", "Params.pad4_length")

# Sketch on XY plane
sketch6 = doc.addObject("Sketcher::SketchObject", "Sketch005")
body.addObject(sketch6)
sketch6.AttachmentSupport = (doc.XY_Plane, [""])
sketch6.MapMode = "FlatFace"
sketch6.AttachmentOffset = App.Placement(V(0, 0, -10.833333), App.Rotation())
sketch6.addGeometry([
    Part.LineSegment(V(-7.163155, -41.387115, 0), V(-7.163155, -62.5, 0)),  # 0
    Part.LineSegment(V(-7.163155, -62.5, 0), V(0, -62.5, 0)),  # 1
    Part.LineSegment(V(0, -62.5, 0), V(0, -41.387115, 0)),  # 2
    Part.LineSegment(V(0, -41.387115, 0), V(-7.163155, -41.387115, 0)),  # 3
    Part.LineSegment(V(34.504565, -44.380372, 0), V(27.743084, -42.568639, 0)),  # 4
    Part.LineSegment(V(27.743084, -42.568639, 0), V(22.954931, -60.438267, 0)),  # 5
    Part.LineSegment(V(22.954931, -60.438267, 0), V(29.716412, -62.25, 0)),  # 6
    Part.LineSegment(V(29.716412, -62.25, 0), V(34.504565, -44.380372, 0)),  # 7
    Part.LineSegment(V(-14.606913, -6.592305, 0), V(-4.041457, -29.25, 0)),  # 8
    Part.LineSegment(V(-4.041457, -29.25, 0), V(3.209006, -25.869054, 0)),  # 9
    Part.LineSegment(V(3.209006, -25.869054, 0), V(-7.356451, -3.211359, 0)),  # 10
    Part.LineSegment(V(-7.356451, -3.211359, 0), V(-14.606913, -6.592305, 0)),  # 11
    Part.LineSegment(V(-43.5, 28.42871, 0), V(-43.5, 3.5, 0)),  # 12
    Part.LineSegment(V(-43.5, 3.5, 0), V(-33.428227, 3.5, 0)),  # 13
    Part.LineSegment(V(-33.428227, 3.5, 0), V(-33.428227, 28.42871, 0)),  # 14
    Part.LineSegment(V(-33.428227, 28.42871, 0), V(-43.5, 28.42871, 0)),  # 15
    Part.LineSegment(V(34.860443, 92.5, 0), V(34.860443, 69.5, 0)),  # 16
    Part.LineSegment(V(34.860443, 69.5, 0), V(42.5, 69.5, 0)),  # 17
    Part.LineSegment(V(42.5, 69.5, 0), V(42.5, 92.5, 0)),  # 18
    Part.LineSegment(V(42.5, 92.5, 0), V(34.860443, 92.5, 0)),  # 19
    Part.LineSegment(V(-43.5, 89.231154, 0), V(-43.5, 69.5, 0)),  # 20
    Part.LineSegment(V(-43.5, 69.5, 0), V(-30.509732, 69.5, 0)),  # 21
    Part.LineSegment(V(-30.509732, 69.5, 0), V(-30.509732, 89.231154, 0)),  # 22
    Part.LineSegment(V(-30.509732, 89.231154, 0), V(-43.5, 89.231154, 0)),  # 23
], False)
sketch6.addConstraint([
    Sketcher.Constraint("Coincident", 0, 2, 1, 1),
    Sketcher.Constraint("Coincident", 1, 2, 2, 1),
    Sketcher.Constraint("Coincident", 2, 2, 3, 1),
    Sketcher.Constraint("Coincident", 3, 2, 0, 1),
    Sketcher.Constraint("Coincident", 4, 2, 5, 1),
    Sketcher.Constraint("Coincident", 5, 2, 6, 1),
    Sketcher.Constraint("Coincident", 6, 2, 7, 1),
    Sketcher.Constraint("Coincident", 7, 2, 4, 1),
    Sketcher.Constraint("Coincident", 8, 2, 9, 1),
    Sketcher.Constraint("Coincident", 9, 2, 10, 1),
    Sketcher.Constraint("Coincident", 10, 2, 11, 1),
    Sketcher.Constraint("Coincident", 11, 2, 8, 1),
    Sketcher.Constraint("Coincident", 12, 2, 13, 1),
    Sketcher.Constraint("Coincident", 13, 2, 14, 1),
    Sketcher.Constraint("Coincident", 14, 2, 15, 1),
    Sketcher.Constraint("Coincident", 15, 2, 12, 1),
    Sketcher.Constraint("Coincident", 16, 2, 17, 1),
    Sketcher.Constraint("Coincident", 17, 2, 18, 1),
    Sketcher.Constraint("Coincident", 18, 2, 19, 1),
    Sketcher.Constraint("Coincident", 19, 2, 16, 1),
    Sketcher.Constraint("Coincident", 20, 2, 21, 1),
    Sketcher.Constraint("Coincident", 21, 2, 22, 1),
    Sketcher.Constraint("Coincident", 22, 2, 23, 1),
    Sketcher.Constraint("Coincident", 23, 2, 20, 1),
    Sketcher.Constraint("Vertical", 0),
    Sketcher.Constraint("Horizontal", 1),
    Sketcher.Constraint("Vertical", 2),
    Sketcher.Constraint("Horizontal", 3),
    Sketcher.Constraint("Vertical", 12),
    Sketcher.Constraint("Horizontal", 13),
    Sketcher.Constraint("Vertical", 14),
    Sketcher.Constraint("Horizontal", 15),
    Sketcher.Constraint("Vertical", 16),
    Sketcher.Constraint("Horizontal", 17),
    Sketcher.Constraint("Vertical", 18),
    Sketcher.Constraint("Horizontal", 19),
    Sketcher.Constraint("Vertical", 20),
    Sketcher.Constraint("Horizontal", 21),
    Sketcher.Constraint("Vertical", 22),
    Sketcher.Constraint("Horizontal", 23),
    Sketcher.Constraint("PointOnObject", 1, 2, -2),
    Sketcher.Constraint("Perpendicular", 4, 5),
    Sketcher.Constraint("Perpendicular", 5, 6),
    Sketcher.Constraint("Perpendicular", 6, 7),
    Sketcher.Constraint("Perpendicular", 8, 9),
    Sketcher.Constraint("Perpendicular", 9, 10),
    Sketcher.Constraint("Perpendicular", 10, 11),
    Sketcher.Constraint("Horizontal", 17, 2, 20, 2),
    Sketcher.Constraint("Vertical", 15, 2, 20, 2),
    Sketcher.Constraint("DistanceY", 16, 2, 16, 1, Q("23 mm")),
    Sketcher.Constraint("Angle", 4, Q("165 deg")),
    Sketcher.Constraint("Angle", 8, Q("-65 deg")),
    Sketcher.Constraint("Distance", 4, Q("7 mm")),
    Sketcher.Constraint("Distance", 8, Q("25 mm")),
    Sketcher.Constraint("Distance", 9, Q("8 mm")),
    Sketcher.Constraint("DistanceY", 13, 2, 16, 2, Q("66 mm")),
    Sketcher.Constraint("DistanceX", 15, 2, 17, 2, Q("86 mm")),
    Sketcher.Constraint("Distance", 5, Q("18.5 mm")),
    Sketcher.Constraint("DistanceY", 0, 2, -1, 1, Q("62.5 mm")),
    Sketcher.Constraint("DistanceX", 12, 2, -1, 1, Q("43.5 mm")),
    Sketcher.Constraint("DistanceY", -1, 1, 12, 2, Q("3.5 mm")),
    Sketcher.Constraint("DistanceY", 6, 2, -1, 1, Q("62.25 mm")),
    Sketcher.Constraint("DistanceY", 8, 2, -1, 1, Q("29.25 mm")),
    Sketcher.Constraint("DistanceY", 12, 2, 12, 1, Q("24.92871 mm")),
    Sketcher.Constraint("DistanceX", 1, 1, 1, 2, Q("7.163155 mm")),
    Sketcher.Constraint("DistanceX", 13, 1, 13, 2, Q("10.071773 mm")),
    Sketcher.Constraint("DistanceX", 17, 1, 17, 2, Q("7.639557 mm")),
    Sketcher.Constraint("DistanceX", 21, 1, 21, 2, Q("12.990268 mm")),
    Sketcher.Constraint("DistanceY", 0, 2, 0, 1, Q("21.112885 mm")),
    Sketcher.Constraint("DistanceY", 20, 2, 20, 1, Q("19.731154 mm")),
    Sketcher.Constraint("DistanceX", -1, 1, 5, 2, Q("22.954931 mm")),
    Sketcher.Constraint("DistanceX", 10, 2, -1, 1, Q("7.356451 mm")),
])
sketch6.setExpression("Constraints[49]", "Params.sketch6_height")
sketch6.setExpression("Constraints[52]", "Params.sketch6_length")
sketch6.setExpression("Constraints[53]", "Params.sketch6_length2")
sketch6.setExpression("Constraints[54]", "Params.sketch6_length3")
sketch6.setExpression("Constraints[57]", "Params.sketch6_length4")
pad5 = doc.addObject("PartDesign::Pad", "Pad004")
body.addObject(pad5)
pad5.Profile = sketch6
pad5.setExpression("Length", "Params.pad5_length")

# Sketch on XY plane
sketch7 = doc.addObject("Sketcher::SketchObject", "Sketch006")
body.addObject(sketch7)
sketch7.AttachmentSupport = (doc.XY_Plane, [""])
sketch7.MapMode = "FlatFace"
sketch7.AttachmentOffset = App.Placement(V(0, 0, -10.833333), App.Rotation())
sketch7.addGeometry([
    Part.LineSegment(V(-22.270068, -41.703178, 0), V(-31.144265, -36.579657, 0)),  # 0
    Part.LineSegment(V(-31.144265, -36.579657, 0), V(-43.006978, -57.12648, 0)),  # 1
    Part.LineSegment(V(-43.006978, -57.12648, 0), V(-34.132781, -62.25, 0)),  # 2
    Part.LineSegment(V(-34.132781, -62.25, 0), V(-22.270068, -41.703178, 0)),  # 3
    Part.LineSegment(V(37.5569, -4.675427, 0), V(37.5569, -29.5, 0)),  # 4
    Part.LineSegment(V(37.5569, -29.5, 0), V(45, -29.5, 0)),  # 5
    Part.LineSegment(V(45, -29.5, 0), V(45, -4.675427, 0)),  # 6
    Part.LineSegment(V(45, -4.675427, 0), V(37.5569, -4.675427, 0)),  # 7
    Part.LineSegment(V(-19.520068, 20.191269, 0), V(-19.520068, 3.5, 0)),  # 8
    Part.LineSegment(V(-19.520068, 3.5, 0), V(-8.378161, 3.5, 0)),  # 9
    Part.LineSegment(V(-8.378161, 3.5, 0), V(-8.378161, 20.191269, 0)),  # 10
    Part.LineSegment(V(-8.378161, 20.191269, 0), V(-19.520068, 20.191269, 0)),  # 11
    Part.LineSegment(V(20.162953, 28.07631, 0), V(20.162953, 3.5, 0)),  # 12
    Part.LineSegment(V(20.162953, 3.5, 0), V(29.760573, 3.5, 0)),  # 13
    Part.LineSegment(V(29.760573, 3.5, 0), V(29.760573, 28.07631, 0)),  # 14
    Part.LineSegment(V(29.760573, 28.07631, 0), V(20.162953, 28.07631, 0)),  # 15
    Part.LineSegment(V(-45, 62.116892, 0), V(-45, 36.5, 0)),  # 16
    Part.LineSegment(V(-45, 36.5, 0), V(-37.777921, 36.5, 0)),  # 17
    Part.LineSegment(V(-37.777921, 36.5, 0), V(-37.777921, 62.116892, 0)),  # 18
    Part.LineSegment(V(-37.777921, 62.116892, 0), V(-45, 62.116892, 0)),  # 19
    Part.LineSegment(V(-12.572459, 63.803769, 0), V(-12.572459, 36.5, 0)),  # 20
    Part.LineSegment(V(-12.572459, 36.5, 0), V(-1.005157, 36.5, 0)),  # 21
    Part.LineSegment(V(-1.005157, 36.5, 0), V(-1.005157, 63.803769, 0)),  # 22
    Part.LineSegment(V(-1.005157, 63.803769, 0), V(-12.572459, 63.803769, 0)),  # 23
    Part.LineSegment(V(2.712521, 60.698792, 0), V(2.712521, 36.5, 0)),  # 24
    Part.LineSegment(V(2.712521, 36.5, 0), V(8.486787, 36.5, 0)),  # 25
    Part.LineSegment(V(8.486787, 36.5, 0), V(8.486787, 60.698792, 0)),  # 26
    Part.LineSegment(V(8.486787, 60.698792, 0), V(2.712521, 60.698792, 0)),  # 27
    Part.LineSegment(V(12.758161, 62.116892, 0), V(12.758161, 36.5, 0)),  # 28
    Part.LineSegment(V(12.758161, 36.5, 0), V(20.162953, 36.5, 0)),  # 29
    Part.LineSegment(V(20.162953, 36.5, 0), V(20.162953, 62.116892, 0)),  # 30
    Part.LineSegment(V(20.162953, 62.116892, 0), V(12.758161, 62.116892, 0)),  # 31
    Part.LineSegment(V(24.464891, 62.116892, 0), V(24.464891, 36.5, 0)),  # 32
    Part.LineSegment(V(24.464891, 36.5, 0), V(32.533043, 36.5, 0)),  # 33
    Part.LineSegment(V(32.533043, 36.5, 0), V(32.533043, 62.116892, 0)),  # 34
    Part.LineSegment(V(32.533043, 62.116892, 0), V(24.464891, 62.116892, 0)),  # 35
    Part.LineSegment(V(-30.259732, 87.284915, 0), V(-20.135944, 69.75, 0)),  # 36
    Part.LineSegment(V(-20.135944, 69.75, 0), V(-9.994869, 75.604953, 0)),  # 37
    Part.LineSegment(V(-9.994869, 75.604953, 0), V(-20.118657, 93.139868, 0)),  # 38
    Part.LineSegment(V(-20.118657, 93.139868, 0), V(-30.259732, 87.284915, 0)),  # 39
    Part.LineSegment(V(5.33981, 91.527016, 0), V(5.33981, 69.5, 0)),  # 40
    Part.LineSegment(V(5.33981, 69.5, 0), V(17.375545, 69.5, 0)),  # 41
    Part.LineSegment(V(17.375545, 69.5, 0), V(17.375545, 91.527016, 0)),  # 42
    Part.LineSegment(V(17.375545, 91.527016, 0), V(5.33981, 91.527016, 0)),  # 43
    Part.LineSegment(V(-5.173389, 89.212859, 0), V(-5.173389, 69.5, 0)),  # 44
    Part.LineSegment(V(-5.173389, 69.5, 0), V(1.432103, 69.5, 0)),  # 45
    Part.LineSegment(V(1.432103, 69.5, 0), V(1.432103, 89.212859, 0)),  # 46
    Part.LineSegment(V(1.432103, 89.212859, 0), V(-5.173389, 89.212859, 0)),  # 47
], False)
sketch7.addConstraint([
    Sketcher.Constraint("Coincident", 0, 2, 1, 1),
    Sketcher.Constraint("Coincident", 1, 2, 2, 1),
    Sketcher.Constraint("Coincident", 2, 2, 3, 1),
    Sketcher.Constraint("Coincident", 3, 2, 0, 1),
    Sketcher.Constraint("Coincident", 4, 2, 5, 1),
    Sketcher.Constraint("Coincident", 5, 2, 6, 1),
    Sketcher.Constraint("Coincident", 6, 2, 7, 1),
    Sketcher.Constraint("Coincident", 7, 2, 4, 1),
    Sketcher.Constraint("Coincident", 8, 2, 9, 1),
    Sketcher.Constraint("Coincident", 9, 2, 10, 1),
    Sketcher.Constraint("Coincident", 10, 2, 11, 1),
    Sketcher.Constraint("Coincident", 11, 2, 8, 1),
    Sketcher.Constraint("Coincident", 12, 2, 13, 1),
    Sketcher.Constraint("Coincident", 13, 2, 14, 1),
    Sketcher.Constraint("Coincident", 14, 2, 15, 1),
    Sketcher.Constraint("Coincident", 15, 2, 12, 1),
    Sketcher.Constraint("Coincident", 16, 2, 17, 1),
    Sketcher.Constraint("Coincident", 17, 2, 18, 1),
    Sketcher.Constraint("Coincident", 18, 2, 19, 1),
    Sketcher.Constraint("Coincident", 19, 2, 16, 1),
    Sketcher.Constraint("Coincident", 20, 2, 21, 1),
    Sketcher.Constraint("Coincident", 21, 2, 22, 1),
    Sketcher.Constraint("Coincident", 22, 2, 23, 1),
    Sketcher.Constraint("Coincident", 23, 2, 20, 1),
    Sketcher.Constraint("Coincident", 24, 2, 25, 1),
    Sketcher.Constraint("Coincident", 25, 2, 26, 1),
    Sketcher.Constraint("Coincident", 26, 2, 27, 1),
    Sketcher.Constraint("Coincident", 27, 2, 24, 1),
    Sketcher.Constraint("Coincident", 28, 2, 29, 1),
    Sketcher.Constraint("Coincident", 29, 2, 30, 1),
    Sketcher.Constraint("Coincident", 30, 2, 31, 1),
    Sketcher.Constraint("Coincident", 31, 2, 28, 1),
    Sketcher.Constraint("Coincident", 32, 2, 33, 1),
    Sketcher.Constraint("Coincident", 33, 2, 34, 1),
    Sketcher.Constraint("Coincident", 34, 2, 35, 1),
    Sketcher.Constraint("Coincident", 35, 2, 32, 1),
    Sketcher.Constraint("Coincident", 36, 2, 37, 1),
    Sketcher.Constraint("Coincident", 37, 2, 38, 1),
    Sketcher.Constraint("Coincident", 38, 2, 39, 1),
    Sketcher.Constraint("Coincident", 39, 2, 36, 1),
    Sketcher.Constraint("Coincident", 40, 2, 41, 1),
    Sketcher.Constraint("Coincident", 41, 2, 42, 1),
    Sketcher.Constraint("Coincident", 42, 2, 43, 1),
    Sketcher.Constraint("Coincident", 43, 2, 40, 1),
    Sketcher.Constraint("Coincident", 44, 2, 45, 1),
    Sketcher.Constraint("Coincident", 45, 2, 46, 1),
    Sketcher.Constraint("Coincident", 46, 2, 47, 1),
    Sketcher.Constraint("Coincident", 47, 2, 44, 1),
    Sketcher.Constraint("Vertical", 4),
    Sketcher.Constraint("Horizontal", 5),
    Sketcher.Constraint("Vertical", 6),
    Sketcher.Constraint("Horizontal", 7),
    Sketcher.Constraint("Vertical", 8),
    Sketcher.Constraint("Horizontal", 9),
    Sketcher.Constraint("Vertical", 10),
    Sketcher.Constraint("Horizontal", 11),
    Sketcher.Constraint("Vertical", 12),
    Sketcher.Constraint("Horizontal", 13),
    Sketcher.Constraint("Vertical", 14),
    Sketcher.Constraint("Horizontal", 15),
    Sketcher.Constraint("Vertical", 16),
    Sketcher.Constraint("Horizontal", 17),
    Sketcher.Constraint("Vertical", 18),
    Sketcher.Constraint("Horizontal", 19),
    Sketcher.Constraint("Vertical", 20),
    Sketcher.Constraint("Horizontal", 21),
    Sketcher.Constraint("Vertical", 22),
    Sketcher.Constraint("Horizontal", 23),
    Sketcher.Constraint("Vertical", 24),
    Sketcher.Constraint("Horizontal", 25),
    Sketcher.Constraint("Vertical", 26),
    Sketcher.Constraint("Horizontal", 27),
    Sketcher.Constraint("Vertical", 28),
    Sketcher.Constraint("Horizontal", 29),
    Sketcher.Constraint("Vertical", 30),
    Sketcher.Constraint("Horizontal", 31),
    Sketcher.Constraint("Vertical", 32),
    Sketcher.Constraint("Horizontal", 33),
    Sketcher.Constraint("Vertical", 34),
    Sketcher.Constraint("Horizontal", 35),
    Sketcher.Constraint("Vertical", 40),
    Sketcher.Constraint("Horizontal", 41),
    Sketcher.Constraint("Vertical", 42),
    Sketcher.Constraint("Horizontal", 43),
    Sketcher.Constraint("Vertical", 44),
    Sketcher.Constraint("Horizontal", 45),
    Sketcher.Constraint("Vertical", 46),
    Sketcher.Constraint("Horizontal", 47),
    Sketcher.Constraint("Perpendicular", 0, 1),
    Sketcher.Constraint("Perpendicular", 1, 2),
    Sketcher.Constraint("Perpendicular", 2, 3),
    Sketcher.Constraint("Perpendicular", 36, 37),
    Sketcher.Constraint("Perpendicular", 37, 38),
    Sketcher.Constraint("Perpendicular", 38, 39),
    Sketcher.Constraint("Horizontal", 9, 2, 12, 2),
    Sketcher.Constraint("Horizontal", 17, 2, 20, 2),
    Sketcher.Constraint("Horizontal", 21, 2, 24, 2),
    Sketcher.Constraint("Horizontal", 25, 2, 28, 2),
    Sketcher.Constraint("Horizontal", 19, 2, 30, 2),
    Sketcher.Constraint("Horizontal", 29, 2, 32, 2),
    Sketcher.Constraint("Horizontal", 31, 2, 34, 2),
    Sketcher.Constraint("Horizontal", 41, 2, 44, 2),
    Sketcher.Constraint("Vertical", 15, 2, 29, 2),
    Sketcher.Constraint("Angle", 0, Q("150 deg")),
    Sketcher.Constraint("Angle", 36, Q("-60 deg")),
    Sketcher.Constraint("DistanceX", -1, 1, 5, 2, Q("45 mm")),
    Sketcher.Constraint("DistanceX", 16, 2, -1, 1, Q("45 mm")),
    Sketcher.Constraint("DistanceY", 4, 2, 12, 2, Q("33 mm")),
    Sketcher.Constraint("DistanceY", 8, 2, 16, 2, Q("33 mm")),
    Sketcher.Constraint("DistanceY", 4, 2, -1, 1, Q("29.5 mm")),
    Sketcher.Constraint("DistanceY", -1, 1, 40, 2, Q("69.5 mm")),
    Sketcher.Constraint("DistanceY", 2, 2, -1, 1, Q("62.25 mm")),
    Sketcher.Constraint("DistanceY", -1, 1, 36, 2, Q("69.75 mm")),
    Sketcher.Constraint("DistanceX", 3, 2, 8, 2, Q("2.75 mm")),
    Sketcher.Constraint("DistanceX", 5, 1, 5, 2, Q("7.4431 mm")),
    Sketcher.Constraint("DistanceX", 13, 1, 13, 2, Q("9.597619 mm")),
    Sketcher.Constraint("DistanceX", 17, 1, 17, 2, Q("7.222079 mm")),
    Sketcher.Constraint("DistanceX", 33, 1, 33, 2, Q("8.068152 mm")),
    Sketcher.Constraint("DistanceY", 8, 2, 8, 1, Q("16.691269 mm")),
    Sketcher.Constraint("DistanceY", 12, 2, 12, 1, Q("24.57631 mm")),
    Sketcher.Constraint("DistanceY", 16, 2, 16, 1, Q("25.616892 mm")),
    Sketcher.Constraint("DistanceY", 20, 2, 20, 1, Q("27.303769 mm")),
    Sketcher.Constraint("DistanceY", 24, 2, 24, 1, Q("24.198792 mm")),
    Sketcher.Constraint("DistanceY", 44, 2, 44, 1, Q("19.712859 mm")),
    Sketcher.Constraint("DistanceX", 20, 2, 10, 2, Q("4.194298 mm")),
    Sketcher.Constraint("DistanceY", 23, 2, 38, 2, Q("29.336099 mm")),
    Sketcher.Constraint("DistanceX", 38, 2, 22, 2, Q("19.1135 mm")),
    Sketcher.Constraint("DistanceX", 44, 2, 40, 2, Q("10.513199 mm")),
    Sketcher.Constraint("Distance", 0, Q("10.247041 mm")),
    Sketcher.Constraint("DistanceX", 9, 1, 9, 2, Q("11.141907 mm")),
    Sketcher.Constraint("DistanceX", 21, 1, 21, 2, Q("11.567303 mm")),
    Sketcher.Constraint("DistanceX", 25, 1, 25, 2, Q("5.774266 mm")),
    Sketcher.Constraint("DistanceX", 29, 1, 29, 2, Q("7.404792 mm")),
    Sketcher.Constraint("DistanceX", 41, 1, 41, 2, Q("12.035735 mm")),
    Sketcher.Constraint("DistanceX", 45, 1, 45, 2, Q("6.605493 mm")),
    Sketcher.Constraint("DistanceY", 4, 2, 4, 1, Q("24.824573 mm")),
    Sketcher.Constraint("DistanceY", 40, 2, 40, 1, Q("22.027016 mm")),
    Sketcher.Constraint("DistanceX", 1, 2, -1, 1, Q("43.006978 mm")),
    Sketcher.Constraint("DistanceX", 9, 2, -1, 1, Q("8.378161 mm")),
    Sketcher.Constraint("DistanceX", -1, 1, 24, 2, Q("2.712521 mm")),
    Sketcher.Constraint("DistanceX", -1, 1, 28, 2, Q("12.758161 mm")),
    Sketcher.Constraint("DistanceX", -1, 1, 32, 2, Q("24.464891 mm")),
    Sketcher.Constraint("DistanceX", 37, 2, -1, 1, Q("9.994869 mm")),
    Sketcher.Constraint("DistanceX", -1, 1, 40, 2, Q("5.33981 mm")),
])
pad6 = doc.addObject("PartDesign::Pad", "Pad005")
body.addObject(pad6)
pad6.Profile = sketch7
pad6.setExpression("Length", "Params.pad6_length")

doc.recompute()
